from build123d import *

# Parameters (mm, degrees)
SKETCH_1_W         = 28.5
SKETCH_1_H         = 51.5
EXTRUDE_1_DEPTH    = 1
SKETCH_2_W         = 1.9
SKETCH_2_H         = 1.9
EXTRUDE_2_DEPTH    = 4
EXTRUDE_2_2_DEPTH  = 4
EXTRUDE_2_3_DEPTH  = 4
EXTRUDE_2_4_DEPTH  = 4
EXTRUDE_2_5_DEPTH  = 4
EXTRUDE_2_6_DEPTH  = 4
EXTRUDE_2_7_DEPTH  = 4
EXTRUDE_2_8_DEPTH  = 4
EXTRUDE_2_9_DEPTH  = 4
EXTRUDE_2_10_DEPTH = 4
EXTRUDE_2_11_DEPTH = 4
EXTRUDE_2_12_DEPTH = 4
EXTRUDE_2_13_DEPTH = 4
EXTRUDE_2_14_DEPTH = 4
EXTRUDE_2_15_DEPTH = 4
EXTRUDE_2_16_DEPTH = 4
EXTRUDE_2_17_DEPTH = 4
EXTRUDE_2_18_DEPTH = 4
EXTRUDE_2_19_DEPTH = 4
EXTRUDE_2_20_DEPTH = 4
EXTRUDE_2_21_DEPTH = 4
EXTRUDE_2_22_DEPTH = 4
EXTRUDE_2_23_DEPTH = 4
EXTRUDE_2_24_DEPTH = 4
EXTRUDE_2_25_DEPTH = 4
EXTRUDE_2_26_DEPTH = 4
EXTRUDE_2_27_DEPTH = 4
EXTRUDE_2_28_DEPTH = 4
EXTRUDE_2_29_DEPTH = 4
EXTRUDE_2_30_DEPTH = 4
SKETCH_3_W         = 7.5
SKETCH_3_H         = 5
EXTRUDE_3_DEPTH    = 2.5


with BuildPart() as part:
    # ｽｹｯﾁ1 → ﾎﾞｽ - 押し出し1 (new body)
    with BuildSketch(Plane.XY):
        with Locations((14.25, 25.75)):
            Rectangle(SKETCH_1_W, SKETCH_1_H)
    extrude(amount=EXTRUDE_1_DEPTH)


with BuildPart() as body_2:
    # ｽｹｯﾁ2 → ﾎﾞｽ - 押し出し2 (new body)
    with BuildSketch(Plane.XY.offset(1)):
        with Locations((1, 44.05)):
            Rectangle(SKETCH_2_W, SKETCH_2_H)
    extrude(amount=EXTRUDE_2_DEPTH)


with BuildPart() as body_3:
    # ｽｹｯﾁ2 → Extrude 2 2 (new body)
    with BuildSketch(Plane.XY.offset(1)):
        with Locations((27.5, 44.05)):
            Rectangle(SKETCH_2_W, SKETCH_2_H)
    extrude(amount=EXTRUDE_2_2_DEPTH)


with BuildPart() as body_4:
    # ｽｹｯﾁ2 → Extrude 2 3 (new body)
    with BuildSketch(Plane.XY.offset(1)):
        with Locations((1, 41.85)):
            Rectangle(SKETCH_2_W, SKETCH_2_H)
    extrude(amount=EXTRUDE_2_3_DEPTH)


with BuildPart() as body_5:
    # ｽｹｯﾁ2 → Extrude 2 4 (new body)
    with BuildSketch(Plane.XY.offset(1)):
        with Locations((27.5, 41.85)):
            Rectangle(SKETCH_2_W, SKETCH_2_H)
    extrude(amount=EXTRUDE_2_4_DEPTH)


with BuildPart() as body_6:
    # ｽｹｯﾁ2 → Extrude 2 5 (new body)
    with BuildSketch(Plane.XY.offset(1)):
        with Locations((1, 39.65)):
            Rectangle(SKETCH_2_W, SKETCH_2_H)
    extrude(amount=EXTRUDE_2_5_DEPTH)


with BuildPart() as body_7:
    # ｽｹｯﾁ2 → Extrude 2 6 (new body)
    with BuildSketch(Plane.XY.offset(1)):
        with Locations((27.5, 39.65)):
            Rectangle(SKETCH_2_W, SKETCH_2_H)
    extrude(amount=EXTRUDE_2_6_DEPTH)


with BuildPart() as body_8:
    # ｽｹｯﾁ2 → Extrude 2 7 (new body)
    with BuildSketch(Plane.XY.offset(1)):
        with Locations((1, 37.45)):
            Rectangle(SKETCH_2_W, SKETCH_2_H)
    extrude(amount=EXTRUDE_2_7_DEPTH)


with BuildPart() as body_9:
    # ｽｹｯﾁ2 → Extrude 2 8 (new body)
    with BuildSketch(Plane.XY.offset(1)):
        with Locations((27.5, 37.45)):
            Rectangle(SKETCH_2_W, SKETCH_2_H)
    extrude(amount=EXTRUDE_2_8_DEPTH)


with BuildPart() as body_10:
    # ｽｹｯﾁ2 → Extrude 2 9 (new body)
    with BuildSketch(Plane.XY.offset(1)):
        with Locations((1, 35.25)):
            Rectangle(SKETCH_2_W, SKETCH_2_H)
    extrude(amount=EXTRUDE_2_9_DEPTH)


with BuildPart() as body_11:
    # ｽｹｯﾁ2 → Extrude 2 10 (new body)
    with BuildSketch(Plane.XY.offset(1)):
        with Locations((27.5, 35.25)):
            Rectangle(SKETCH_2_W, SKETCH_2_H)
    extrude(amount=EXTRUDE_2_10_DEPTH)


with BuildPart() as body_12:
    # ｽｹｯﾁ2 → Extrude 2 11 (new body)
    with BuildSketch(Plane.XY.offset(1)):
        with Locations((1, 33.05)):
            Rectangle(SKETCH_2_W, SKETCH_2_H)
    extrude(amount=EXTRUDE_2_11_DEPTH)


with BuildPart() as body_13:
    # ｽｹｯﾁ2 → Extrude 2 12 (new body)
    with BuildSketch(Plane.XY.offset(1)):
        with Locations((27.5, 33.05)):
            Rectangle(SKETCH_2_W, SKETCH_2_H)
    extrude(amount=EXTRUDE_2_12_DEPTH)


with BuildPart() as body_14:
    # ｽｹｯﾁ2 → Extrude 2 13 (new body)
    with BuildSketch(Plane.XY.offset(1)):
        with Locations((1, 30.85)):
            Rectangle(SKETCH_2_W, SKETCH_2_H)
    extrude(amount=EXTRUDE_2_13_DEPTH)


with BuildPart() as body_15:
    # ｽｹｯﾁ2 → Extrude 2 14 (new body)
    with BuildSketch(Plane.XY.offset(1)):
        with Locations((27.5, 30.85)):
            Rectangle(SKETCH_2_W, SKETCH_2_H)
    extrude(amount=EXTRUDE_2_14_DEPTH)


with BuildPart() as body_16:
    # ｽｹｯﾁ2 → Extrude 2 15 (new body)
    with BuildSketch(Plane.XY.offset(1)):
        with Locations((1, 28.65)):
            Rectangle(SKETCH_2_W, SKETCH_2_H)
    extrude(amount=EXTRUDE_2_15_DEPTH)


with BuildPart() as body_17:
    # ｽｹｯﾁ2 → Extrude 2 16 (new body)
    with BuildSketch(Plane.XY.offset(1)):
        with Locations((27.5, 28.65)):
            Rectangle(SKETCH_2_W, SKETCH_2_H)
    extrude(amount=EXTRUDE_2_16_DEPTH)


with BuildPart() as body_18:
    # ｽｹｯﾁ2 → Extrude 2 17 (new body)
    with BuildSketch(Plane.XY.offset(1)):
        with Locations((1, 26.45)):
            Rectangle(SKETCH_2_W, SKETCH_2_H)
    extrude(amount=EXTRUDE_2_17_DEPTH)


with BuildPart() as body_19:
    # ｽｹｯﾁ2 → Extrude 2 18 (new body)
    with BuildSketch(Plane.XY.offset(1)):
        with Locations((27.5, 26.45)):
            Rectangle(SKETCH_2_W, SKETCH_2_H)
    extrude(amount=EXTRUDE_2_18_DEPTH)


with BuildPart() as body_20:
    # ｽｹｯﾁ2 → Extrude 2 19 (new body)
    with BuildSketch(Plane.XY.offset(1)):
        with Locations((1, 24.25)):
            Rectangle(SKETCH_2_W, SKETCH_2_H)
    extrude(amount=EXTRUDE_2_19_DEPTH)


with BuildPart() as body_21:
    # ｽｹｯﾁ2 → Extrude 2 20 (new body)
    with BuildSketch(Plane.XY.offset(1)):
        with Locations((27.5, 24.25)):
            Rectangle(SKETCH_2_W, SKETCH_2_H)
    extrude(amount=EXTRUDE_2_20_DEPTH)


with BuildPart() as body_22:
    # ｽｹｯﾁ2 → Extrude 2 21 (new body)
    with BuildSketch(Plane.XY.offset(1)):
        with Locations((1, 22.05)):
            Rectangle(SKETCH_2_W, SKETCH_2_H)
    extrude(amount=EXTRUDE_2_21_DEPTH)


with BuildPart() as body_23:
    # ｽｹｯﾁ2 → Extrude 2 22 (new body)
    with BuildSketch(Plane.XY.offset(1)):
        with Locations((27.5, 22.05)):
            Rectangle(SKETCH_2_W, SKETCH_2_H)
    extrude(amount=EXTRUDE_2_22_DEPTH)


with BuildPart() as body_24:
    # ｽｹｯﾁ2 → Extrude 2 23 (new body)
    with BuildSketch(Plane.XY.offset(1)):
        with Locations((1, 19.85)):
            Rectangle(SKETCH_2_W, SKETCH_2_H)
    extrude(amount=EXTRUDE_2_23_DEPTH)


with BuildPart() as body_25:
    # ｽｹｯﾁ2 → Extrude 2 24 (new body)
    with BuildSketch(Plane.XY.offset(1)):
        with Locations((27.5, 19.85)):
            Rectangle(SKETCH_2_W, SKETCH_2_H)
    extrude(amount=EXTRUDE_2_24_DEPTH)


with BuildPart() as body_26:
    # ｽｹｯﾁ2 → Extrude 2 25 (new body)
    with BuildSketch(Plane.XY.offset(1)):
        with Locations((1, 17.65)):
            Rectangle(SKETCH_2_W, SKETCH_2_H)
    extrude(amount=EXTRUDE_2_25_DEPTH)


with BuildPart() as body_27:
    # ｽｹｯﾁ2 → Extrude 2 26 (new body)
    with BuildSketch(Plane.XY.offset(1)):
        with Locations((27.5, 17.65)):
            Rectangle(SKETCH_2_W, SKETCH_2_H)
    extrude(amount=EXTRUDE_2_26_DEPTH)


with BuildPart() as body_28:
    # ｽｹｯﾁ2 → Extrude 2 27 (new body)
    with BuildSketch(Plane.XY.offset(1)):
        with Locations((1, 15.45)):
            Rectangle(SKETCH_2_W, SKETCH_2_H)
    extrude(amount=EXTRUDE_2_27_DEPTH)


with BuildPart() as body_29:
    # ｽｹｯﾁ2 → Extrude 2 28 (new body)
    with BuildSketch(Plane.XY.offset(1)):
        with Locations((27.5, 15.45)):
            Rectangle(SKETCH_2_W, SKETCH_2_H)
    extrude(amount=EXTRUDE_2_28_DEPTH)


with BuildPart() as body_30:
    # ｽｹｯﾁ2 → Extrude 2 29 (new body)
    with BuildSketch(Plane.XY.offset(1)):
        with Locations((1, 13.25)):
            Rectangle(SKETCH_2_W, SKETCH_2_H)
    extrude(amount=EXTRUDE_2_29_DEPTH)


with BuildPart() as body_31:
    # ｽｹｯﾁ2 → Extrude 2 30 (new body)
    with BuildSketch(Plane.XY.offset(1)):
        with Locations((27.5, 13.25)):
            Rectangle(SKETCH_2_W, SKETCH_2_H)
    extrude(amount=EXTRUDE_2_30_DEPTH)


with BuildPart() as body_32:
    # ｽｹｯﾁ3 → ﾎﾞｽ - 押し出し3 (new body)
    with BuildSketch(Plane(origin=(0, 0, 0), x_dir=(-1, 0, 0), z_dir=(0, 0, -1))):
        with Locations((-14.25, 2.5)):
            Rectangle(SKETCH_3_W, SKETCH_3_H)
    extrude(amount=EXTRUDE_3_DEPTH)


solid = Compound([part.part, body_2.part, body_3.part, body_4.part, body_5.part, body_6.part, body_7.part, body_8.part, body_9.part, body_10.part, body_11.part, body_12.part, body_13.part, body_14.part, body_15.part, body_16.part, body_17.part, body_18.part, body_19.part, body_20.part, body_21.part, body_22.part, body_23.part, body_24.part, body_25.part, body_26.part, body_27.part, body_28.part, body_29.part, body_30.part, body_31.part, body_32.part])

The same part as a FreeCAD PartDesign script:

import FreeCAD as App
import Part
import Sketcher

doc = App.newDocument("Part")
body = doc.addObject("PartDesign::Body", "Body")

# Sketch on XY plane
sketch1 = body.newObject("Sketcher::SketchObject", "Sketch")
sketch1.AttachmentSupport = (doc.getObject("XY_Plane"), [""])
sketch1.MapMode = "FlatFace"
sketch1.addGeometry([
    Part.LineSegment(App.Vector(0, 51.5, 0), App.Vector(0, 0, 0)),
    Part.LineSegment(App.Vector(0, 0, 0), App.Vector(28.5, 0, 0)),
    Part.LineSegment(App.Vector(28.5, 0, 0), App.Vector(28.5, 51.5, 0)),
    Part.LineSegment(App.Vector(28.5, 51.5, 0), App.Vector(0, 51.5, 0)),
], False)
sketch1.addConstraint([
    Sketcher.Constraint("Coincident", 0, 2, 1, 1),
    Sketcher.Constraint("Coincident", 1, 2, 2, 1),
    Sketcher.Constraint("Coincident", 2, 2, 3, 1),
    Sketcher.Constraint("Coincident", 3, 2, 0, 1),
    Sketcher.Constraint("Vertical", 0),
    Sketcher.Constraint("Horizontal", 1),
    Sketcher.Constraint("Vertical", 2),
    Sketcher.Constraint("Horizontal", 3),
    Sketcher.Constraint("Coincident", 0, 2, -1, 1),
    Sketcher.Constraint("DistanceX", 1, 1, 1, 2, 28.5),
    Sketcher.Constraint("DistanceY", 0, 2, 0, 1, 51.5),
])
pad1 = body.newObject("PartDesign::Pad", "Pad")
pad1.Profile = sketch1
pad1.Length = 1
body2 = doc.addObject("PartDesign::Body", "Body001")

# Sketch on XY plane
sketch2 = body2.newObject("Sketcher::SketchObject", "Sketch001")
sketch2.AttachmentSupport = (doc.getObject("XY_Plane001"), [""])
sketch2.MapMode = "FlatFace"
sketch2.AttachmentOffset = App.Placement(App.Vector(0, 0, 1), App.Rotation())
sketch2.addGeometry([
    Part.LineSegment(App.Vector(0.05, 45, 0), App.Vector(0.05, 43.1, 0)),
    Part.LineSegment(App.Vector(0.05, 43.1, 0), App.Vector(1.95, 43.1, 0)),
    Part.LineSegment(App.Vector(1.95, 43.1, 0), App.Vector(1.95, 45, 0)),
    Part.LineSegment(App.Vector(1.95, 45, 0), App.Vector(0.05, 45, 0)),
], False)
sketch2.addConstraint([
    Sketcher.Constraint("Coincident", 0, 2, 1, 1),
    Sketcher.Constraint("Coincident", 1, 2, 2, 1),
    Sketcher.Constraint("Coincident", 2, 2, 3, 1),
    Sketcher.Constraint("Coincident", 3, 2, 0, 1),
    Sketcher.Constraint("Vertical", 0),
    Sketcher.Constraint("Horizontal", 1),
    Sketcher.Constraint("Vertical", 2),
    Sketcher.Constraint("Horizontal", 3),
    Sketcher.Constraint("Equal", 3, 0),
    Sketcher.Constraint("DistanceX", 1, 1, 1, 2, 1.9),
    Sketcher.Constraint("DistanceY", -1, 1, 2, 2, 45.0),
    Sketcher.Constraint("DistanceX", -1, 1, 0, 2, 0.05),
])
pad2 = body2.newObject("PartDesign::Pad", "Pad001")
pad2.Profile = sketch2
pad2.Length = 4
body3 = doc.addObject("PartDesign::Body", "Body002")

# Sketch on XY plane
sketch3 = body3.newObject("Sketcher::SketchObject", "Sketch002")
sketch3.AttachmentSupport = (doc.getObject("XY_Plane002"), [""])
sketch3.MapMode = "FlatFace"
sketch3.AttachmentOffset = App.Placement(App.Vector(0, 0, 1), App.Rotation())
sketch3.addGeometry([
    Part.LineSegment(App.Vector(26.55, 45, 0), App.Vector(26.55, 43.1, 0)),
    Part.LineSegment(App.Vector(26.55, 43.1, 0), App.Vector(28.45, 43.1, 0)),
    Part.LineSegment(App.Vector(28.45, 43.1, 0), App.Vector(28.45, 45, 0)),
    Part.LineSegment(App.Vector(28.45, 45, 0), App.Vector(26.55, 45, 0)),
], False)
sketch3.addConstraint([
    Sketcher.Constraint("Coincident", 0, 2, 1, 1),
    Sketcher.Constraint("Coincident", 1, 2, 2, 1),
    Sketcher.Constraint("Coincident", 2, 2, 3, 1),
    Sketcher.Constraint("Coincident", 3, 2, 0, 1),
    Sketcher.Constraint("Vertical", 0),
    Sketcher.Constraint("Horizontal", 1),
    Sketcher.Constraint("Vertical", 2),
    Sketcher.Constraint("Horizontal", 3),
    Sketcher.Constraint("Equal", 3, 0),
    Sketcher.Constraint("DistanceX", 1, 1, 1, 2, 1.9),
    Sketcher.Constraint("DistanceY", -1, 1, 2, 2, 45.0),
    Sketcher.Constraint("DistanceX", -1, 1, 0, 2, 26.55),
])
pad3 = body3.newObject("PartDesign::Pad", "Pad002")
pad3.Profile = sketch3
pad3.Length = 4
body4 = doc.addObject("PartDesign::Body", "Body003")

# Sketch on XY plane
sketch4 = body4.newObject("Sketcher::SketchObject", "Sketch003")
sketch4.AttachmentSupport = (doc.getObject("XY_Plane003"), [""])
sketch4.MapMode = "FlatFace"
sketch4.AttachmentOffset = App.Placement(App.Vector(0, 0, 1), App.Rotation())
sketch4.addGeometry([
    Part.LineSegment(App.Vector(0.05, 42.8, 0), App.Vector(0.05, 40.9, 0)),
    Part.LineSegment(App.Vector(0.05, 40.9, 0), App.Vector(1.95, 40.9, 0)),
    Part.LineSegment(App.Vector(1.95, 40.9, 0), App.Vector(1.95, 42.8, 0)),
    Part.LineSegment(App.Vector(1.95, 42.8, 0), App.Vector(0.05, 42.8, 0)),
], False)
sketch4.addConstraint([
    Sketcher.Constraint("Coincident", 0, 2, 1, 1),
    Sketcher.Constraint("Coincident", 1, 2, 2, 1),
    Sketcher.Constraint("Coincident", 2, 2, 3, 1),
    Sketcher.Constraint("Coincident", 3, 2, 0, 1),
    Sketcher.Constraint("Vertical", 0),
    Sketcher.Constraint("Horizontal", 1),
    Sketcher.Constraint("Vertical", 2),
    Sketcher.Constraint("Horizontal", 3),
    Sketcher.Constraint("Equal", 3, 0),
    Sketcher.Constraint("DistanceX", 1, 1, 1, 2, 1.9),
    Sketcher.Constraint("DistanceY", -1, 1, 0, 2, 40.9),
    Sketcher.Constraint("DistanceX", -1, 1, 0, 2, 0.05),
])
pad4 = body4.newObject("PartDesign::Pad", "Pad003")
pad4.Profile = sketch4
pad4.Length = 4
body5 = doc.addObject("PartDesign::Body", "Body004")

# Sketch on XY plane
sketch5 = body5.newObject("Sketcher::SketchObject", "Sketch004")
sketch5.AttachmentSupport = (doc.getObject("XY_Plane004"), [""])
sketch5.MapMode = "FlatFace"
sketch5.AttachmentOffset = App.Placement(App.Vector(0, 0, 1), App.Rotation())
sketch5.addGeometry([
    Part.LineSegment(App.Vector(26.55, 42.8, 0), App.Vector(26.55, 40.9, 0)),
    Part.LineSegment(App.Vector(26.55, 40.9, 0), App.Vector(28.45, 40.9, 0)),
    Part.LineSegment(App.Vector(28.45, 40.9, 0), App.Vector(28.45, 42.8, 0)),
    Part.LineSegment(App.Vector(28.45, 42.8, 0), App.Vector(26.55, 42.8, 0)),
], False)
sketch5.addConstraint([
    Sketcher.Constraint("Coincident", 0, 2, 1, 1),
    Sketcher.Constraint("Coincident", 1, 2, 2, 1),
    Sketcher.Constraint("Coincident", 2, 2, 3, 1),
    Sketcher.Constraint("Coincident", 3, 2, 0, 1),
    Sketcher.Constraint("Vertical", 0),
    Sketcher.Constraint("Horizontal", 1),
    Sketcher.Constraint("Vertical", 2),
    Sketcher.Constraint("Horizontal", 3),
    Sketcher.Constraint("Equal", 3, 0),
    Sketcher.Constraint("DistanceX", 1, 1, 1, 2, 1.9),
    Sketcher.Constraint("DistanceY", -1, 1, 0, 2, 40.9),
    Sketcher.Constraint("DistanceX", -1, 1, 0, 2, 26.55),
])
pad5 = body5.newObject("PartDesign::Pad", "Pad004")
pad5.Profile = sketch5
pad5.Length = 4
body6 = doc.addObject("PartDesign::Body", "Body005")

# Sketch on XY plane
sketch6 = body6.newObject("Sketcher::SketchObject", "Sketch005")
sketch6.AttachmentSupport = (doc.getObject("XY_Plane005"), [""])
sketch6.MapMode = "FlatFace"
sketch6.AttachmentOffset = App.Placement(App.Vector(0, 0, 1), App.Rotation())
sketch6.addGeometry([
    Part.LineSegment(App.Vector(0.05, 40.6, 0), App.Vector(0.05, 38.7, 0)),
    Part.LineSegment(App.Vector(0.05, 38.7, 0), App.Vector(1.95, 38.7, 0)),
    Part.LineSegment(App.Vector(1.95, 38.7, 0), App.Vector(1.95, 40.6, 0)),
    Part.LineSegment(App.Vector(1.95, 40.6, 0), App.Vector(0.05, 40.6, 0)),
], False)
sketch6.addConstraint([
    Sketcher.Constraint("Coincident", 0, 2, 1, 1),
    Sketcher.Constraint("Coincident", 1, 2, 2, 1),
    Sketcher.Constraint("Coincident", 2, 2, 3, 1),
    Sketcher.Constraint("Coincident", 3, 2, 0, 1),
    Sketcher.Constraint("Vertical", 0),
    Sketcher.Constraint("Horizontal", 1),
    Sketcher.Constraint("Vertical", 2),
    Sketcher.Constraint("Horizontal", 3),
    Sketcher.Constraint("Equal", 3, 0),
    Sketcher.Constraint("DistanceX", 1, 1, 1, 2, 1.9),
    Sketcher.Constraint("DistanceY", -1, 1, 0, 2, 38.7),
    Sketcher.Constraint("DistanceX", -1, 1, 0, 2, 0.05),
])
pad6 = body6.newObject("PartDesign::Pad", "Pad005")
pad6.Profile = sketch6
pad6.Length = 4
body7 = doc.addObject("PartDesign::Body", "Body006")

# Sketch on XY plane
sketch7 = body7.newObject("Sketcher::SketchObject", "Sketch006")
sketch7.AttachmentSupport = (doc.getObject("XY_Plane006"), [""])
sketch7.MapMode = "FlatFace"
sketch7.AttachmentOffset = App.Placement(App.Vector(0, 0, 1), App.Rotation())
sketch7.addGeometry([
    Part.LineSegment(App.Vector(26.55, 40.6, 0), App.Vector(26.55, 38.7, 0)),
    Part.LineSegment(App.Vector(26.55, 38.7, 0), App.Vector(28.45, 38.7, 0)),
    Part.LineSegment(App.Vector(28.45, 38.7, 0), App.Vector(28.45, 40.6, 0)),
    Part.LineSegment(App.Vector(28.45, 40.6, 0), App.Vector(26.55, 40.6, 0)),
], False)
sketch7.addConstraint([
    Sketcher.Constraint("Coincident", 0, 2, 1, 1),
    Sketcher.Constraint("Coincident", 1, 2, 2, 1),
    Sketcher.Constraint("Coincident", 2, 2, 3, 1),
    Sketcher.Constraint("Coincident", 3, 2, 0, 1),
    Sketcher.Constraint("Vertical", 0),
    Sketcher.Constraint("Horizontal", 1),
    Sketcher.Constraint("Vertical", 2),
    Sketcher.Constraint("Horizontal", 3),
    Sketcher.Constraint("Equal", 3, 0),
    Sketcher.Constraint("DistanceX", 1, 1, 1, 2, 1.9),
    Sketcher.Constraint("DistanceY", -1, 1, 0, 2, 38.7),
    Sketcher.Constraint("DistanceX", -1, 1, 0, 2, 26.55),
])
pad7 = body7.newObject("PartDesign::Pad", "Pad006")
pad7.Profile = sketch7
pad7.Length = 4
body8 = doc.addObject("PartDesign::Body", "Body007")

# Sketch on XY plane
sketch8 = body8.newObject("Sketcher::SketchObject", "Sketch007")
sketch8.AttachmentSupport = (doc.getObject("XY_Plane007"), [""])
sketch8.MapMode = "FlatFace"
sketch8.AttachmentOffset = App.Placement(App.Vector(0, 0, 1), App.Rotation())
sketch8.addGeometry([
    Part.LineSegment(App.Vector(0.05, 38.4, 0), App.Vector(0.05, 36.5, 0)),
    Part.LineSegment(App.Vector(0.05, 36.5, 0), App.Vector(1.95, 36.5, 0)),
    Part.LineSegment(App.Vector(1.95, 36.5, 0), App.Vector(1.95, 38.4, 0)),
    Part.LineSegment(App.Vector(1.95, 38.4, 0), App.Vector(0.05, 38.4, 0)),
], False)
sketch8.addConstraint([
    Sketcher.Constraint("Coincident", 0, 2, 1, 1),
    Sketcher.Constraint("Coincident", 1, 2, 2, 1),
    Sketcher.Constraint("Coincident", 2, 2, 3, 1),
    Sketcher.Constraint("Coincident", 3, 2, 0, 1),
    Sketcher.Constraint("Vertical", 0),
    Sketcher.Constraint("Horizontal", 1),
    Sketcher.Constraint("Vertical", 2),
    Sketcher.Constraint("Horizontal", 3),
    Sketcher.Constraint("Equal", 3, 0),
    Sketcher.Constraint("DistanceX", 1, 1, 1, 2, 1.9),
    Sketcher.Constraint("DistanceY", -1, 1, 0, 2, 36.5),
    Sketcher.Constraint("DistanceX", -1, 1, 0, 2, 0.05),
])
pad8 = body8.newObject("PartDesign::Pad", "Pad007")
pad8.Profile = sketch8
pad8.Length = 4
body9 = doc.addObject("PartDesign::Body", "Body008")

# Sketch on XY plane
sketch9 = body9.newObject("Sketcher::SketchObject", "Sketch008")
sketch9.AttachmentSupport = (doc.getObject("XY_Plane008"), [""])
sketch9.MapMode = "FlatFace"
sketch9.AttachmentOffset = App.Placement(App.Vector(0, 0, 1), App.Rotation())
sketch9.addGeometry([
    Part.LineSegment(App.Vector(26.55, 38.4, 0), App.Vector(26.55, 36.5, 0)),
    Part.LineSegment(App.Vector(26.55, 36.5, 0), App.Vector(28.45, 36.5, 0)),
    Part.LineSegment(App.Vector(28.45, 36.5, 0), App.Vector(28.45, 38.4, 0)),
    Part.LineSegment(App.Vector(28.45, 38.4, 0), App.Vector(26.55, 38.4, 0)),
], False)
sketch9.addConstraint([
    Sketcher.Constraint("Coincident", 0, 2, 1, 1),
    Sketcher.Constraint("Coincident", 1, 2, 2, 1),
    Sketcher.Constraint("Coincident", 2, 2, 3, 1),
    Sketcher.Constraint("Coincident", 3, 2, 0, 1),
    Sketcher.Constraint("Vertical", 0),
    Sketcher.Constraint("Horizontal", 1),
    Sketcher.Constraint("Vertical", 2),
    Sketcher.Constraint("Horizontal", 3),
    Sketcher.Constraint("Equal", 3, 0),
    Sketcher.Constraint("DistanceX", 1, 1, 1, 2, 1.9),
    Sketcher.Constraint("DistanceY", -1, 1, 0, 2, 36.5),
    Sketcher.Constraint("DistanceX", -1, 1, 0, 2, 26.55),
])
pad9 = body9.newObject("PartDesign::Pad", "Pad008")
pad9.Profile = sketch9
pad9.Length = 4
body10 = doc.addObject("PartDesign::Body", "Body009")

# Sketch on XY plane
sketch10 = body10.newObject("Sketcher::SketchObject", "Sketch009")
sketch10.AttachmentSupport = (doc.getObject("XY_Plane009"), [""])
sketch10.MapMode = "FlatFace"
sketch10.AttachmentOffset = App.Placement(App.Vector(0, 0, 1), App.Rotation())
sketch10.addGeometry([
    Part.LineSegment(App.Vector(0.05, 36.2, 0), App.Vector(0.05, 34.3, 0)),
    Part.LineSegment(App.Vector(0.05, 34.3, 0), App.Vector(1.95, 34.3, 0)),
    Part.LineSegment(App.Vector(1.95, 34.3, 0), App.Vector(1.95, 36.2, 0)),
    Part.LineSegment(App.Vector(1.95, 36.2, 0), App.Vector(0.05, 36.2, 0)),
], False)
sketch10.addConstraint([
    Sketcher.Constraint("Coincident", 0, 2, 1, 1),
    Sketcher.Constraint("Coincident", 1, 2, 2, 1),
    Sketcher.Constraint("Coincident", 2, 2, 3, 1),
    Sketcher.Constraint("Coincident", 3, 2, 0, 1),
    Sketcher.Constraint("Vertical", 0),
    Sketcher.Constraint("Horizontal", 1),
    Sketcher.Constraint("Vertical", 2),
    Sketcher.Constraint("Horizontal", 3),
    Sketcher.Constraint("Equal", 3, 0),
    Sketcher.Constraint("DistanceX", 1, 1, 1, 2, 1.9),
    Sketcher.Constraint("DistanceY", -1, 1, 0, 2, 34.3),
    Sketcher.Constraint("DistanceX", -1, 1, 0, 2, 0.05),
])
pad10 = body10.newObject("PartDesign::Pad", "Pad009")
pad10.Profile = sketch10
pad10.Length = 4
body11 = doc.addObject("PartDesign::Body", "Body010")

# Sketch on XY plane
sketch11 = body11.newObject("Sketcher::SketchObject", "Sketch010")
sketch11.AttachmentSupport = (doc.getObject("XY_Plane010"), [""])
sketch11.MapMode = "FlatFace"
sketch11.AttachmentOffset = App.Placement(App.Vector(0, 0, 1), App.Rotation())
sketch11.addGeometry([
    Part.LineSegment(App.Vector(26.55, 36.2, 0), App.Vector(26.55, 34.3, 0)),
    Part.LineSegment(App.Vector(26.55, 34.3, 0), App.Vector(28.45, 34.3, 0)),
    Part.LineSegment(App.Vector(28.45, 34.3, 0), App.Vector(28.45, 36.2, 0)),
    Part.LineSegment(App.Vector(28.45, 36.2, 0), App.Vector(26.55, 36.2, 0)),
], False)
sketch11.addConstraint([
    Sketcher.Constraint("Coincident", 0, 2, 1, 1),
    Sketcher.Constraint("Coincident", 1, 2, 2, 1),
    Sketcher.Constraint("Coincident", 2, 2, 3, 1),
    Sketcher.Constraint("Coincident", 3, 2, 0, 1),
    Sketcher.Constraint("Vertical", 0),
    Sketcher.Constraint("Horizontal", 1),
    Sketcher.Constraint("Vertical", 2),
    Sketcher.Constraint("Horizontal", 3),
    Sketcher.Constraint("Equal", 3, 0),
    Sketcher.Constraint("DistanceX", 1, 1, 1, 2, 1.9),
    Sketcher.Constraint("DistanceY", -1, 1, 0, 2, 34.3),
    Sketcher.Constraint("DistanceX", -1, 1, 0, 2, 26.55),
])
pad11 = body11.newObject("PartDesign::Pad", "Pad010")
pad11.Profile = sketch11
pad11.Length = 4
body12 = doc.addObject("PartDesign::Body", "Body011")

# Sketch on XY plane
sketch12 = body12.newObject("Sketcher::SketchObject", "Sketch011")
sketch12.AttachmentSupport = (doc.getObject("XY_Plane011"), [""])
sketch12.MapMode = "FlatFace"
sketch12.AttachmentOffset = App.Placement(App.Vector(0, 0, 1), App.Rotation())
sketch12.addGeometry([
    Part.LineSegment(App.Vector(0.05, 34, 0), App.Vector(0.05, 32.1, 0)),
    Part.LineSegment(App.Vector(0.05, 32.1, 0), App.Vector(1.95, 32.1, 0)),
    Part.LineSegment(App.Vector(1.95, 32.1, 0), App.Vector(1.95, 34, 0)),
    Part.LineSegment(App.Vector(1.95, 34, 0), App.Vector(0.05, 34, 0)),
], False)
sketch12.addConstraint([
    Sketcher.Constraint("Coincident", 0, 2, 1, 1),
    Sketcher.Constraint("Coincident", 1, 2, 2, 1),
    Sketcher.Constraint("Coincident", 2, 2, 3, 1),
    Sketcher.Constraint("Coincident", 3, 2, 0, 1),
    Sketcher.Constraint("Vertical", 0),
    Sketcher.Constraint("Horizontal", 1),
    Sketcher.Constraint("Vertical", 2),
    Sketcher.Constraint("Horizontal", 3),
    Sketcher.Constraint("Equal", 3, 0),
    Sketcher.Constraint("DistanceX", 1, 1, 1, 2, 1.9),
    Sketcher.Constraint("DistanceY", -1, 1, 2, 2, 34.0),
    Sketcher.Constraint("DistanceX", -1, 1, 0, 2, 0.05),
])
pad12 = body12.newObject("PartDesign::Pad", "Pad011")
pad12.Profile = sketch12
pad12.Length = 4
body13 = doc.addObject("PartDesign::Body", "Body012")

# Sketch on XY plane
sketch13 = body13.newObject("Sketcher::SketchObject", "Sketch012")
sketch13.AttachmentSupport = (doc.getObject("XY_Plane012"), [""])
sketch13.MapMode = "FlatFace"
sketch13.AttachmentOffset = App.Placement(App.Vector(0, 0, 1), App.Rotation())
sketch13.addGeometry([
    Part.LineSegment(App.Vector(26.55, 34, 0), App.Vector(26.55, 32.1, 0)),
    Part.LineSegment(App.Vector(26.55, 32.1, 0), App.Vector(28.45, 32.1, 0)),
    Part.LineSegment(App.Vector(28.45, 32.1, 0), App.Vector(28.45, 34, 0)),
    Part.LineSegment(App.Vector(28.45, 34, 0), App.Vector(26.55, 34, 0)),
], False)
sketch13.addConstraint([
    Sketcher.Constraint("Coincident", 0, 2, 1, 1),
    Sketcher.Constraint("Coincident", 1, 2, 2, 1),
    Sketcher.Constraint("Coincident", 2, 2, 3, 1),
    Sketcher.Constraint("Coincident", 3, 2, 0, 1),
    Sketcher.Constraint("Vertical", 0),
    Sketcher.Constraint("Horizontal", 1),
    Sketcher.Constraint("Vertical", 2),
    Sketcher.Constraint("Horizontal", 3),
    Sketcher.Constraint("Equal", 3, 0),
    Sketcher.Constraint("DistanceX", 1, 1, 1, 2, 1.9),
    Sketcher.Constraint("DistanceY", -1, 1, 2, 2, 34.0),
    Sketcher.Constraint("DistanceX", -1, 1, 0, 2, 26.55),
])
pad13 = body13.newObject("PartDesign::Pad", "Pad012")
pad13.Profile = sketch13
pad13.Length = 4
body14 = doc.addObject("PartDesign::Body", "Body013")

# Sketch on XY plane
sketch14 = body14.newObject("Sketcher::SketchObject", "Sketch013")
sketch14.AttachmentSupport = (doc.getObject("XY_Plane013"), [""])
sketch14.MapMode = "FlatFace"
sketch14.AttachmentOffset = App.Placement(App.Vector(0, 0, 1), App.Rotation())
sketch14.addGeometry([
    Part.LineSegment(App.Vector(0.05, 31.8, 0), App.Vector(0.05, 29.9, 0)),
    Part.LineSegment(App.Vector(0.05, 29.9, 0), App.Vector(1.95, 29.9, 0)),
    Part.LineSegment(App.Vector(1.95, 29.9, 0), App.Vector(1.95, 31.8, 0)),
    Part.LineSegment(App.Vector(1.95, 31.8, 0), App.Vector(0.05, 31.8, 0)),
], False)
sketch14.addConstraint([
    Sketcher.Constraint("Coincident", 0, 2, 1, 1),
    Sketcher.Constraint("Coincident", 1, 2, 2, 1),
    Sketcher.Constraint("Coincident", 2, 2, 3, 1),
    Sketcher.Constraint("Coincident", 3, 2, 0, 1),
    Sketcher.Constraint("Vertical", 0),
    Sketcher.Constraint("Horizontal", 1),
    Sketcher.Constraint("Vertical", 2),
    Sketcher.Constraint("Horizontal", 3),
    Sketcher.Constraint("Equal", 3, 0),
    Sketcher.Constraint("DistanceX", 1, 1, 1, 2, 1.9),
    Sketcher.Constraint("DistanceY", -1, 1, 0, 2, 29.9),
    Sketcher.Constraint("DistanceX", -1, 1, 0, 2, 0.05),
])
pad14 = body14.newObject("PartDesign::Pad", "Pad013")
pad14.Profile = sketch14
pad14.Length = 4
body15 = doc.addObject("PartDesign::Body", "Body014")

# Sketch on XY plane
sketch15 = body15.newObject("Sketcher::SketchObject", "Sketch014")
sketch15.AttachmentSupport = (doc.getObject("XY_Plane014"), [""])
sketch15.MapMode = "FlatFace"
sketch15.AttachmentOffset = App.Placement(App.Vector(0, 0, 1), App.Rotation())
sketch15.addGeometry([
    Part.LineSegment(App.Vector(26.55, 31.8, 0), App.Vector(26.55, 29.9, 0)),
    Part.LineSegment(App.Vector(26.55, 29.9, 0), App.Vector(28.45, 29.9, 0)),
    Part.LineSegment(App.Vector(28.45, 29.9, 0), App.Vector(28.45, 31.8, 0)),
    Part.LineSegment(App.Vector(28.45, 31.8, 0), App.Vector(26.55, 31.8, 0)),
], False)
sketch15.addConstraint([
    Sketcher.Constraint("Coincident", 0, 2, 1, 1),
    Sketcher.Constraint("Coincident", 1, 2, 2, 1),
    Sketcher.Constraint("Coincident", 2, 2, 3, 1),
    Sketcher.Constraint("Coincident", 3, 2, 0, 1),
    Sketcher.Constraint("Vertical", 0),
    Sketcher.Constraint("Horizontal", 1),
    Sketcher.Constraint("Vertical", 2),
    Sketcher.Constraint("Horizontal", 3),
    Sketcher.Constraint("Equal", 3, 0),
    Sketcher.Constraint("DistanceX", 1, 1, 1, 2, 1.9),
    Sketcher.Constraint("DistanceY", -1, 1, 0, 2, 29.9),
    Sketcher.Constraint("DistanceX", -1, 1, 0, 2, 26.55),
])
pad15 = body15.newObject("PartDesign::Pad", "Pad014")
pad15.Profile = sketch15
pad15.Length = 4
body16 = doc.addObject("PartDesign::Body", "Body015")

# Sketch on XY plane
sketch16 = body16.newObject("Sketcher::SketchObject", "Sketch015")
sketch16.AttachmentSupport = (doc.getObject("XY_Plane015"), [""])
sketch16.MapMode = "FlatFace"
sketch16.AttachmentOffset = App.Placement(App.Vector(0, 0, 1), App.Rotation())
sketch16.addGeometry([
    Part.LineSegment(App.Vector(0.05, 29.6, 0), App.Vector(0.05, 27.7, 0)),
    Part.LineSegment(App.Vector(0.05, 27.7, 0), App.Vector(1.95, 27.7, 0)),
    Part.LineSegment(App.Vector(1.95, 27.7, 0), App.Vector(1.95, 29.6, 0)),
    Part.LineSegment(App.Vector(1.95, 29.6, 0), App.Vector(0.05, 29.6, 0)),
], False)
sketch16.addConstraint([
    Sketcher.Constraint("Coincident", 0, 2, 1, 1),
    Sketcher.Constraint("Coincident", 1, 2, 2, 1),
    Sketcher.Constraint("Coincident", 2, 2, 3, 1),
    Sketcher.Constraint("Coincident", 3, 2, 0, 1),
    Sketcher.Constraint("Vertical", 0),
    Sketcher.Constraint("Horizontal", 1),
    Sketcher.Constraint("Vertical", 2),
    Sketcher.Constraint("Horizontal", 3),
    Sketcher.Constraint("Equal", 3, 0),
    Sketcher.Constraint("DistanceX", 1, 1, 1, 2, 1.9),
    Sketcher.Constraint("DistanceY", -1, 1, 0, 2, 27.7),
    Sketcher.Constraint("DistanceX", -1, 1, 0, 2, 0.05),
])
pad16 = body16.newObject("PartDesign::Pad", "Pad015")
pad16.Profile = sketch16
pad16.Length = 4
body17 = doc.addObject("PartDesign::Body", "Body016")

# Sketch on XY plane
sketch17 = body17.newObject("Sketcher::SketchObject", "Sketch016")
sketch17.AttachmentSupport = (doc.getObject("XY_Plane016"), [""])
sketch17.MapMode = "FlatFace"
sketch17.AttachmentOffset = App.Placement(App.Vector(0, 0, 1), App.Rotation())
sketch17.addGeometry([
    Part.LineSegment(App.Vector(26.55, 29.6, 0), App.Vector(26.55, 27.7, 0)),
    Part.LineSegment(App.Vector(26.55, 27.7, 0), App.Vector(28.45, 27.7, 0)),
    Part.LineSegment(App.Vector(28.45, 27.7, 0), App.Vector(28.45, 29.6, 0)),
    Part.LineSegment(App.Vector(28.45, 29.6, 0), App.Vector(26.55, 29.6, 0)),
], False)
sketch17.addConstraint([
    Sketcher.Constraint("Coincident", 0, 2, 1, 1),
    Sketcher.Constraint("Coincident", 1, 2, 2, 1),
    Sketcher.Constraint("Coincident", 2, 2, 3, 1),
    Sketcher.Constraint("Coincident", 3, 2, 0, 1),
    Sketcher.Constraint("Vertical", 0),
    Sketcher.Constraint("Horizontal", 1),
    Sketcher.Constraint("Vertical", 2),
    Sketcher.Constraint("Horizontal", 3),
    Sketcher.Constraint("Equal", 3, 0),
    Sketcher.Constraint("DistanceX", 1, 1, 1, 2, 1.9),
    Sketcher.Constraint("DistanceY", -1, 1, 0, 2, 27.7),
    Sketcher.Constraint("DistanceX", -1, 1, 0, 2, 26.55),
])
pad17 = body17.newObject("PartDesign::Pad", "Pad016")
pad17.Profile = sketch17
pad17.Length = 4
body18 = doc.addObject("PartDesign::Body", "Body017")

# Sketch on XY plane
sketch18 = body18.newObject("Sketcher::SketchObject", "Sketch017")
sketch18.AttachmentSupport = (doc.getObject("XY_Plane017"), [""])
sketch18.MapMode = "FlatFace"
sketch18.AttachmentOffset = App.Placement(App.Vector(0, 0, 1), App.Rotation())
sketch18.addGeometry([
    Part.LineSegment(App.Vector(0.05, 27.4, 0), App.Vector(0.05, 25.5, 0)),
    Part.LineSegment(App.Vector(0.05, 25.5, 0), App.Vector(1.95, 25.5, 0)),
    Part.LineSegment(App.Vector(1.95, 25.5, 0), App.Vector(1.95, 27.4, 0)),
    Part.LineSegment(App.Vector(1.95, 27.4, 0), App.Vector(0.05, 27.4, 0)),
], False)
sketch18.addConstraint([
    Sketcher.Constraint("Coincident", 0, 2, 1, 1),
    Sketcher.Constraint("Coincident", 1, 2, 2, 1),
    Sketcher.Constraint("Coincident", 2, 2, 3, 1),
    Sketcher.Constraint("Coincident", 3, 2, 0, 1),
    Sketcher.Constraint("Vertical", 0),
    Sketcher.Constraint("Horizontal", 1),
    Sketcher.Constraint("Vertical", 2),
    Sketcher.Constraint("Horizontal", 3),
    Sketcher.Constraint("Equal", 3, 0),
    Sketcher.Constraint("DistanceX", 1, 1, 1, 2, 1.9),
    Sketcher.Constraint("DistanceY", -1, 1, 0, 2, 25.5),
    Sketcher.Constraint("DistanceX", -1, 1, 0, 2, 0.05),
])
pad18 = body18.newObject("PartDesign::Pad", "Pad017")
pad18.Profile = sketch18
pad18.Length = 4
body19 = doc.addObject("PartDesign::Body", "Body018")

# Sketch on XY plane
sketch19 = body19.newObject("Sketcher::SketchObject", "Sketch018")
sketch19.AttachmentSupport = (doc.getObject("XY_Plane018"), [""])
sketch19.MapMode = "FlatFace"
sketch19.AttachmentOffset = App.Placement(App.Vector(0, 0, 1), App.Rotation())
sketch19.addGeometry([
    Part.LineSegment(App.Vector(26.55, 27.4, 0), App.Vector(26.55, 25.5, 0)),
    Part.LineSegment(App.Vector(26.55, 25.5, 0), App.Vector(28.45, 25.5, 0)),
    Part.LineSegment(App.Vector(28.45, 25.5, 0), App.Vector(28.45, 27.4, 0)),
    Part.LineSegment(App.Vector(28.45, 27.4, 0), App.Vector(26.55, 27.4, 0)),
], False)
sketch19.addConstraint([
    Sketcher.Constraint("Coincident", 0, 2, 1, 1),
    Sketcher.Constraint("Coincident", 1, 2, 2, 1),
    Sketcher.Constraint("Coincident", 2, 2, 3, 1),
    Sketcher.Constraint("Coincident", 3, 2, 0, 1),
    Sketcher.Constraint("Vertical", 0),
    Sketcher.Constraint("Horizontal", 1),
    Sketcher.Constraint("Vertical", 2),
    Sketcher.Constraint("Horizontal", 3),
    Sketcher.Constraint("Equal", 3, 0),
    Sketcher.Constraint("DistanceX", 1, 1, 1, 2, 1.9),
    Sketcher.Constraint("DistanceY", -1, 1, 0, 2, 25.5),
    Sketcher.Constraint("DistanceX", -1, 1, 0, 2, 26.55),
])
pad19 = body19.newObject("PartDesign::Pad", "Pad018")
pad19.Profile = sketch19
pad19.Length = 4
body20 = doc.addObject("PartDesign::Body", "Body019")

# Sketch on XY plane
sketch20 = body20.newObject("Sketcher::SketchObject", "Sketch019")
sketch20.AttachmentSupport = (doc.getObject("XY_Plane019"), [""])
sketch20.MapMode = "FlatFace"
sketch20.AttachmentOffset = App.Placement(App.Vector(0, 0, 1), App.Rotation())
sketch20.addGeometry([
    Part.LineSegment(App.Vector(0.05, 25.2, 0), App.Vector(0.05, 23.3, 0)),
    Part.LineSegment(App.Vector(0.05, 23.3, 0), App.Vector(1.95, 23.3, 0)),
    Part.LineSegment(App.Vector(1.95, 23.3, 0), App.Vector(1.95, 25.2, 0)),
    Part.LineSegment(App.Vector(1.95, 25.2, 0), App.Vector(0.05, 25.2, 0)),
], False)
sketch20.addConstraint([
    Sketcher.Constraint("Coincident", 0, 2, 1, 1),
    Sketcher.Constraint("Coincident", 1, 2, 2, 1),
    Sketcher.Constraint("Coincident", 2, 2, 3, 1),
    Sketcher.Constraint("Coincident", 3, 2, 0, 1),
    Sketcher.Constraint("Vertical", 0),
    Sketcher.Constraint("Horizontal", 1),
    Sketcher.Constraint("Vertical", 2),
    Sketcher.Constraint("Horizontal", 3),
    Sketcher.Constraint("Equal", 3, 0),
    Sketcher.Constraint("DistanceX", 1, 1, 1, 2, 1.9),
    Sketcher.Constraint("DistanceY", -1, 1, 0, 2, 23.3),
    Sketcher.Constraint("DistanceX", -1, 1, 0, 2, 0.05),
])
pad20 = body20.newObject("PartDesign::Pad", "Pad019")
pad20.Profile = sketch20
pad20.Length = 4
body21 = doc.addObject("PartDesign::Body", "Body020")

# Sketch on XY plane
sketch21 = body21.newObject("Sketcher::SketchObject", "Sketch020")
sketch21.AttachmentSupport = (doc.getObject("XY_Plane020"), [""])
sketch21.MapMode = "FlatFace"
sketch21.AttachmentOffset = App.Placement(App.Vector(0, 0, 1), App.Rotation())
sketch21.addGeometry([
    Part.LineSegment(App.Vector(26.55, 25.2, 0), App.Vector(26.55, 23.3, 0)),
    Part.LineSegment(App.Vector(26.55, 23.3, 0), App.Vector(28.45, 23.3, 0)),
    Part.LineSegment(App.Vector(28.45, 23.3, 0), App.Vector(28.45, 25.2, 0)),
    Part.LineSegment(App.Vector(28.45, 25.2, 0), App.Vector(26.55, 25.2, 0)),
], False)
sketch21.addConstraint([
    Sketcher.Constraint("Coincident", 0, 2, 1, 1),
    Sketcher.Constraint("Coincident", 1, 2, 2, 1),
    Sketcher.Constraint("Coincident", 2, 2, 3, 1),
    Sketcher.Constraint("Coincident", 3, 2, 0, 1),
    Sketcher.Constraint("Vertical", 0),
    Sketcher.Constraint("Horizontal", 1),
    Sketcher.Constraint("Vertical", 2),
    Sketcher.Constraint("Horizontal", 3),
    Sketcher.Constraint("Equal", 3, 0),
    Sketcher.Constraint("DistanceX", 1, 1, 1, 2, 1.9),
    Sketcher.Constraint("DistanceY", -1, 1, 0, 2, 23.3),
    Sketcher.Constraint("DistanceX", -1, 1, 0, 2, 26.55),
])
pad21 = body21.newObject("PartDesign::Pad", "Pad020")
pad21.Profile = sketch21
pad21.Length = 4
body22 = doc.addObject("PartDesign::Body", "Body021")

# Sketch on XY plane
sketch22 = body22.newObject("Sketcher::SketchObject", "Sketch021")
sketch22.AttachmentSupport = (doc.getObject("XY_Plane021"), [""])
sketch22.MapMode = "FlatFace"
sketch22.AttachmentOffset = App.Placement(App.Vector(0, 0, 1), App.Rotation())
sketch22.addGeometry([
    Part.LineSegment(App.Vector(0.05, 23, 0), App.Vector(0.05, 21.1, 0)),
    Part.LineSegment(App.Vector(0.05, 21.1, 0), App.Vector(1.95, 21.1, 0)),
    Part.LineSegment(App.Vector(1.95, 21.1, 0), App.Vector(1.95, 23, 0)),
    Part.LineSegment(App.Vector(1.95, 23, 0), App.Vector(0.05, 23, 0)),
], False)
sketch22.addConstraint([
    Sketcher.Constraint("Coincident", 0, 2, 1, 1),
    Sketcher.Constraint("Coincident", 1, 2, 2, 1),
    Sketcher.Constraint("Coincident", 2, 2, 3, 1),
    Sketcher.Constraint("Coincident", 3, 2, 0, 1),
    Sketcher.Constraint("Vertical", 0),
    Sketcher.Constraint("Horizontal", 1),
    Sketcher.Constraint("Vertical", 2),
    Sketcher.Constraint("Horizontal", 3),
    Sketcher.Constraint("Equal", 3, 0),
    Sketcher.Constraint("DistanceX", 1, 1, 1, 2, 1.9),
    Sketcher.Constraint("DistanceY", -1, 1, 2, 2, 23.0),
    Sketcher.Constraint("DistanceX", -1, 1, 0, 2, 0.05),
])
pad22 = body22.newObject("PartDesign::Pad", "Pad021")
pad22.Profile = sketch22
pad22.Length = 4
body23 = doc.addObject("PartDesign::Body", "Body022")

# Sketch on XY plane
sketch23 = body23.newObject("Sketcher::SketchObject", "Sketch022")
sketch23.AttachmentSupport = (doc.getObject("XY_Plane022"), [""])
sketch23.MapMode = "FlatFace"
sketch23.AttachmentOffset = App.Placement(App.Vector(0, 0, 1), App.Rotation())
sketch23.addGeometry([
    Part.LineSegment(App.Vector(26.55, 23, 0), App.Vector(26.55, 21.1, 0)),
    Part.LineSegment(App.Vector(26.55, 21.1, 0), App.Vector(28.45, 21.1, 0)),
    Part.LineSegment(App.Vector(28.45, 21.1, 0), App.Vector(28.45, 23, 0)),
    Part.LineSegment(App.Vector(28.45, 23, 0), App.Vector(26.55, 23, 0)),
], False)
sketch23.addConstraint([
    Sketcher.Constraint("Coincident", 0, 2, 1, 1),
    Sketcher.Constraint("Coincident", 1, 2, 2, 1),
    Sketcher.Constraint("Coincident", 2, 2, 3, 1),
    Sketcher.Constraint("Coincident", 3, 2, 0, 1),
    Sketcher.Constraint("Vertical", 0),
    Sketcher.Constraint("Horizontal", 1),
    Sketcher.Constraint("Vertical", 2),
    Sketcher.Constraint("Horizontal", 3),
    Sketcher.Constraint("Equal", 3, 0),
    Sketcher.Constraint("DistanceX", 1, 1, 1, 2, 1.9),
    Sketcher.Constraint("DistanceY", -1, 1, 2, 2, 23.0),
    Sketcher.Constraint("DistanceX", -1, 1, 0, 2, 26.55),
])
pad23 = body23.newObject("PartDesign::Pad", "Pad022")
pad23.Profile = sketch23
pad23.Length = 4
body24 = doc.addObject("PartDesign::Body", "Body023")

# Sketch on XY plane
sketch24 = body24.newObject("Sketcher::SketchObject", "Sketch023")
sketch24.AttachmentSupport = (doc.getObject("XY_Plane023"), [""])
sketch24.MapMode = "FlatFace"
sketch24.AttachmentOffset = App.Placement(App.Vector(0, 0, 1), App.Rotation())
sketch24.addGeometry([
    Part.LineSegment(App.Vector(0.05, 20.8, 0), App.Vector(0.05, 18.9, 0)),
    Part.LineSegment(App.Vector(0.05, 18.9, 0), App.Vector(1.95, 18.9, 0)),
    Part.LineSegment(App.Vector(1.95, 18.9, 0), App.Vector(1.95, 20.8, 0)),
    Part.LineSegment(App.Vector(1.95, 20.8, 0), App.Vector(0.05, 20.8, 0)),
], False)
sketch24.addConstraint([
    Sketcher.Constraint("Coincident", 0, 2, 1, 1),
    Sketcher.Constraint("Coincident", 1, 2, 2, 1),
    Sketcher.Constraint("Coincident", 2, 2, 3, 1),
    Sketcher.Constraint("Coincident", 3, 2, 0, 1),
    Sketcher.Constraint("Vertical", 0),
    Sketcher.Constraint("Horizontal", 1),
    Sketcher.Constraint("Vertical", 2),
    Sketcher.Constraint("Horizontal", 3),
    Sketcher.Constraint("Equal", 3, 0),
    Sketcher.Constraint("DistanceX", 1, 1, 1, 2, 1.9),
    Sketcher.Constraint("DistanceY", -1, 1, 0, 2, 18.9),
    Sketcher.Constraint("DistanceX", -1, 1, 0, 2, 0.05),
])
pad24 = body24.newObject("PartDesign::Pad", "Pad023")
pad24.Profile = sketch24
pad24.Length = 4
body25 = doc.addObject("PartDesign::Body", "Body024")

# Sketch on XY plane
sketch25 = body25.newObject("Sketcher::SketchObject", "Sketch024")
sketch25.AttachmentSupport = (doc.getObject("XY_Plane024"), [""])
sketch25.MapMode = "FlatFace"
sketch25.AttachmentOffset = App.Placement(App.Vector(0, 0, 1), App.Rotation())
sketch25.addGeometry([
    Part.LineSegment(App.Vector(26.55, 20.8, 0), App.Vector(26.55, 18.9, 0)),
    Part.LineSegment(App.Vector(26.55, 18.9, 0), App.Vector(28.45, 18.9, 0)),
    Part.LineSegment(App.Vector(28.45, 18.9, 0), App.Vector(28.45, 20.8, 0)),
    Part.LineSegment(App.Vector(28.45, 20.8, 0), App.Vector(26.55, 20.8, 0)),
], False)
sketch25.addConstraint([
    Sketcher.Constraint("Coincident", 0, 2, 1, 1),
    Sketcher.Constraint("Coincident", 1, 2, 2, 1),
    Sketcher.Constraint("Coincident", 2, 2, 3, 1),
    Sketcher.Constraint("Coincident", 3, 2, 0, 1),
    Sketcher.Constraint("Vertical", 0),
    Sketcher.Constraint("Horizontal", 1),
    Sketcher.Constraint("Vertical", 2),
    Sketcher.Constraint("Horizontal", 3),
    Sketcher.Constraint("Equal", 3, 0),
    Sketcher.Constraint("DistanceX", 1, 1, 1, 2, 1.9),
    Sketcher.Constraint("DistanceY", -1, 1, 0, 2, 18.9),
    Sketcher.Constraint("DistanceX", -1, 1, 0, 2, 26.55),
])
pad25 = body25.newObject("PartDesign::Pad", "Pad024")
pad25.Profile = sketch25
pad25.Length = 4
body26 = doc.addObject("PartDesign::Body", "Body025")

# Sketch on XY plane
sketch26 = body26.newObject("Sketcher::SketchObject", "Sketch025")
sketch26.AttachmentSupport = (doc.getObject("XY_Plane025"), [""])
sketch26.MapMode = "FlatFace"
sketch26.AttachmentOffset = App.Placement(App.Vector(0, 0, 1), App.Rotation())
sketch26.addGeometry([
    Part.LineSegment(App.Vector(0.05, 18.6, 0), App.Vector(0.05, 16.7, 0)),
    Part.LineSegment(App.Vector(0.05, 16.7, 0), App.Vector(1.95, 16.7, 0)),
    Part.LineSegment(App.Vector(1.95, 16.7, 0), App.Vector(1.95, 18.6, 0)),
    Part.LineSegment(App.Vector(1.95, 18.6, 0), App.Vector(0.05, 18.6, 0)),
], False)
sketch26.addConstraint([
    Sketcher.Constraint("Coincident", 0, 2, 1, 1),
    Sketcher.Constraint("Coincident", 1, 2, 2, 1),
    Sketcher.Constraint("Coincident", 2, 2, 3, 1),
    Sketcher.Constraint("Coincident", 3, 2, 0, 1),
    Sketcher.Constraint("Vertical", 0),
    Sketcher.Constraint("Horizontal", 1),
    Sketcher.Constraint("Vertical", 2),
    Sketcher.Constraint("Horizontal", 3),
    Sketcher.Constraint("Equal", 3, 0),
    Sketcher.Constraint("DistanceX", 1, 1, 1, 2, 1.9),
    Sketcher.Constraint("DistanceY", -1, 1, 0, 2, 16.7),
    Sketcher.Constraint("DistanceX", -1, 1, 0, 2, 0.05),
])
pad26 = body26.newObject("PartDesign::Pad", "Pad025")
pad26.Profile = sketch26
pad26.Length = 4
body27 = doc.addObject("PartDesign::Body", "Body026")

# Sketch on XY plane
sketch27 = body27.newObject("Sketcher::SketchObject", "Sketch026")
sketch27.AttachmentSupport = (doc.getObject("XY_Plane026"), [""])
sketch27.MapMode = "FlatFace"
sketch27.AttachmentOffset = App.Placement(App.Vector(0, 0, 1), App.Rotation())
sketch27.addGeometry([
    Part.LineSegment(App.Vector(26.55, 18.6, 0), App.Vector(26.55, 16.7, 0)),
    Part.LineSegment(App.Vector(26.55, 16.7, 0), App.Vector(28.45, 16.7, 0)),
    Part.LineSegment(App.Vector(28.45, 16.7, 0), App.Vector(28.45, 18.6, 0)),
    Part.LineSegment(App.Vector(28.45, 18.6, 0), App.Vector(26.55, 18.6, 0)),
], False)
sketch27.addConstraint([
    Sketcher.Constraint("Coincident", 0, 2, 1, 1),
    Sketcher.Constraint("Coincident", 1, 2, 2, 1),
    Sketcher.Constraint("Coincident", 2, 2, 3, 1),
    Sketcher.Constraint("Coincident", 3, 2, 0, 1),
    Sketcher.Constraint("Vertical", 0),
    Sketcher.Constraint("Horizontal", 1),
    Sketcher.Constraint("Vertical", 2),
    Sketcher.Constraint("Horizontal", 3),
    Sketcher.Constraint("Equal", 3, 0),
    Sketcher.Constraint("DistanceX", 1, 1, 1, 2, 1.9),
    Sketcher.Constraint("DistanceY", -1, 1, 0, 2, 16.7),
    Sketcher.Constraint("DistanceX", -1, 1, 0, 2, 26.55),
])
pad27 = body27.newObject("PartDesign::Pad", "Pad026")
pad27.Profile = sketch27
pad27.Length = 4
body28 = doc.addObject("PartDesign::Body", "Body027")

# Sketch on XY plane
sketch28 = body28.newObject("Sketcher::SketchObject", "Sketch027")
sketch28.AttachmentSupport = (doc.getObject("XY_Plane027"), [""])
sketch28.MapMode = "FlatFace"
sketch28.AttachmentOffset = App.Placement(App.Vector(0, 0, 1), App.Rotation())
sketch28.addGeometry([
    Part.LineSegment(App.Vector(0.05, 16.4, 0), App.Vector(0.05, 14.5, 0)),
    Part.LineSegment(App.Vector(0.05, 14.5, 0), App.Vector(1.95, 14.5, 0)),
    Part.LineSegment(App.Vector(1.95, 14.5, 0), App.Vector(1.95, 16.4, 0)),
    Part.LineSegment(App.Vector(1.95, 16.4, 0), App.Vector(0.05, 16.4, 0)),
], False)
sketch28.addConstraint([
    Sketcher.Constraint("Coincident", 0, 2, 1, 1),
    Sketcher.Constraint("Coincident", 1, 2, 2, 1),
    Sketcher.Constraint("Coincident", 2, 2, 3, 1),
    Sketcher.Constraint("Coincident", 3, 2, 0, 1),
    Sketcher.Constraint("Vertical", 0),
    Sketcher.Constraint("Horizontal", 1),
    Sketcher.Constraint("Vertical", 2),
    Sketcher.Constraint("Horizontal", 3),
    Sketcher.Constraint("Equal", 3, 0),
    Sketcher.Constraint("DistanceX", 1, 1, 1, 2, 1.9),
    Sketcher.Constraint("DistanceY", -1, 1, 0, 2, 14.5),
    Sketcher.Constraint("DistanceX", -1, 1, 0, 2, 0.05),
])
pad28 = body28.newObject("PartDesign::Pad", "Pad027")
pad28.Profile = sketch28
pad28.Length = 4
body29 = doc.addObject("PartDesign::Body", "Body028")

# Sketch on XY plane
sketch29 = body29.newObject("Sketcher::SketchObject", "Sketch028")
sketch29.AttachmentSupport = (doc.getObject("XY_Plane028"), [""])
sketch29.MapMode = "FlatFace"
sketch29.AttachmentOffset = App.Placement(App.Vector(0, 0, 1), App.Rotation())
sketch29.addGeometry([
    Part.LineSegment(App.Vector(26.55, 16.4, 0), App.Vector(26.55, 14.5, 0)),
    Part.LineSegment(App.Vector(26.55, 14.5, 0), App.Vector(28.45, 14.5, 0)),
    Part.LineSegment(App.Vector(28.45, 14.5, 0), App.Vector(28.45, 16.4, 0)),
    Part.LineSegment(App.Vector(28.45, 16.4, 0), App.Vector(26.55, 16.4, 0)),
], False)
sketch29.addConstraint([
    Sketcher.Constraint("Coincident", 0, 2, 1, 1),
    Sketcher.Constraint("Coincident", 1, 2, 2, 1),
    Sketcher.Constraint("Coincident", 2, 2, 3, 1),
    Sketcher.Constraint("Coincident", 3, 2, 0, 1),
    Sketcher.Constraint("Vertical", 0),
    Sketcher.Constraint("Horizontal", 1),
    Sketcher.Constraint("Vertical", 2),
    Sketcher.Constraint("Horizontal", 3),
    Sketcher.Constraint("Equal", 3, 0),
    Sketcher.Constraint("DistanceX", 1, 1, 1, 2, 1.9),
    Sketcher.Constraint("DistanceY", -1, 1, 0, 2, 14.5),
    Sketcher.Constraint("DistanceX", -1, 1, 0, 2, 26.55),
])
pad29 = body29.newObject("PartDesign::Pad", "Pad028")
pad29.Profile = sketch29
pad29.Length = 4
body30 = doc.addObject("PartDesign::Body", "Body029")

# Sketch on XY plane
sketch30 = body30.newObject("Sketcher::SketchObject", "Sketch029")
sketch30.AttachmentSupport = (doc.getObject("XY_Plane029"), [""])
sketch30.MapMode = "FlatFace"
sketch30.AttachmentOffset = App.Placement(App.Vector(0, 0, 1), App.Rotation())
sketch30.addGeometry([
    Part.LineSegment(App.Vector(0.05, 14.2, 0), App.Vector(0.05, 12.3, 0)),
    Part.LineSegment(App.Vector(0.05, 12.3, 0), App.Vector(1.95, 12.3, 0)),
    Part.LineSegment(App.Vector(1.95, 12.3, 0), App.Vector(1.95, 14.2, 0)),
    Part.LineSegment(App.Vector(1.95, 14.2, 0), App.Vector(0.05, 14.2, 0)),
], False)
sketch30.addConstraint([
    Sketcher.Constraint("Coincident", 0, 2, 1, 1),
    Sketcher.Constraint("Coincident", 1, 2, 2, 1),
    Sketcher.Constraint("Coincident", 2, 2, 3, 1),
    Sketcher.Constraint("Coincident", 3, 2, 0, 1),
    Sketcher.Constraint("Vertical", 0),
    Sketcher.Constraint("Horizontal", 1),
    Sketcher.Constraint("Vertical", 2),
    Sketcher.Constraint("Horizontal", 3),
    Sketcher.Constraint("Equal", 3, 0),
    Sketcher.Constraint("DistanceX", 1, 1, 1, 2, 1.9),
    Sketcher.Constraint("DistanceY", -1, 1, 0, 2, 12.3),
    Sketcher.Constraint("DistanceX", -1, 1, 0, 2, 0.05),
])
pad30 = body30.newObject("PartDesign::Pad", "Pad029")
pad30.Profile = sketch30
pad30.Length = 4
body31 = doc.addObject("PartDesign::Body", "Body030")

# Sketch on XY plane
sketch31 = body31.newObject("Sketcher::SketchObject", "Sketch030")
sketch31.AttachmentSupport = (doc.getObject("XY_Plane030"), [""])
sketch31.MapMode = "FlatFace"
sketch31.AttachmentOffset = App.Placement(App.Vector(0, 0, 1), App.Rotation())
sketch31.addGeometry([
    Part.LineSegment(App.Vector(26.55, 14.2, 0), App.Vector(26.55, 12.3, 0)),
    Part.LineSegment(App.Vector(26.55, 12.3, 0), App.Vector(28.45, 12.3, 0)),
    Part.LineSegment(App.Vector(28.45, 12.3, 0), App.Vector(28.45, 14.2, 0)),
    Part.LineSegment(App.Vector(28.45, 14.2, 0), App.Vector(26.55, 14.2, 0)),
], False)
sketch31.addConstraint([
    Sketcher.Constraint("Coincident", 0, 2, 1, 1),
    Sketcher.Constraint("Coincident", 1, 2, 2, 1),
    Sketcher.Constraint("Coincident", 2, 2, 3, 1),
    Sketcher.Constraint("Coincident", 3, 2, 0, 1),
    Sketcher.Constraint("Vertical", 0),
    Sketcher.Constraint("Horizontal", 1),
    Sketcher.Constraint("Vertical", 2),
    Sketcher.Constraint("Horizontal", 3),
    Sketcher.Constraint("Equal", 3, 0),
    Sketcher.Constraint("DistanceX", 1, 1, 1, 2, 1.9),
    Sketcher.Constraint("DistanceY", -1, 1, 0, 2, 12.3),
    Sketcher.Constraint("DistanceX", -1, 1, 0, 2, 26.55),
])
pad31 = body31.newObject("PartDesign::Pad", "Pad030")
pad31.Profile = sketch31
pad31.Length = 4
body32 = doc.addObject("PartDesign::Body", "Body031")

# Sketch on XY plane
sketch32 = body32.newObject("Sketcher::SketchObject", "Sketch031")
sketch32.AttachmentSupport = (doc.getObject("XY_Plane031"), [""])
sketch32.MapMode = "FlatFace"
sketch32.addGeometry([
    Part.LineSegment(App.Vector(18, 5, 0), App.Vector(18, 0, 0)),
    Part.LineSegment(App.Vector(18, 0, 0), App.Vector(10.5, 0, 0)),
    Part.LineSegment(App.Vector(10.5, 0, 0), App.Vector(10.5, 5, 0)),
    Part.LineSegment(App.Vector(10.5, 5, 0), App.Vector(18, 5, 0)),
], False)
sketch32.addConstraint([
    Sketcher.Constraint("Coincident", 0, 2, 1, 1),
    Sketcher.Constraint("Coincident", 1, 2, 2, 1),
    Sketcher.Constraint("Coincident", 2, 2, 3, 1),
    Sketcher.Constraint("Coincident", 3, 2, 0, 1),
    Sketcher.Constraint("Vertical", 0),
    Sketcher.Constraint("Horizontal", 1),
    Sketcher.Constraint("Vertical", 2),
    Sketcher.Constraint("Horizontal", 3),
    Sketcher.Constraint("PointOnObject", 0, 2, -1),
    Sketcher.Constraint("DistanceY", 0, 2, 0, 1, 5.0),
    Sketcher.Constraint("DistanceX", 1, 2, 1, 1, 7.5),
    Sketcher.Constraint("DistanceX", -1, 1, 0, 2, 18.0),
])
pad32 = body32.newObject("PartDesign::Pad", "Pad031")
pad32.Profile = sketch32
pad32.Length = 2.5
pad32.Reversed = True

doc.recompute()
